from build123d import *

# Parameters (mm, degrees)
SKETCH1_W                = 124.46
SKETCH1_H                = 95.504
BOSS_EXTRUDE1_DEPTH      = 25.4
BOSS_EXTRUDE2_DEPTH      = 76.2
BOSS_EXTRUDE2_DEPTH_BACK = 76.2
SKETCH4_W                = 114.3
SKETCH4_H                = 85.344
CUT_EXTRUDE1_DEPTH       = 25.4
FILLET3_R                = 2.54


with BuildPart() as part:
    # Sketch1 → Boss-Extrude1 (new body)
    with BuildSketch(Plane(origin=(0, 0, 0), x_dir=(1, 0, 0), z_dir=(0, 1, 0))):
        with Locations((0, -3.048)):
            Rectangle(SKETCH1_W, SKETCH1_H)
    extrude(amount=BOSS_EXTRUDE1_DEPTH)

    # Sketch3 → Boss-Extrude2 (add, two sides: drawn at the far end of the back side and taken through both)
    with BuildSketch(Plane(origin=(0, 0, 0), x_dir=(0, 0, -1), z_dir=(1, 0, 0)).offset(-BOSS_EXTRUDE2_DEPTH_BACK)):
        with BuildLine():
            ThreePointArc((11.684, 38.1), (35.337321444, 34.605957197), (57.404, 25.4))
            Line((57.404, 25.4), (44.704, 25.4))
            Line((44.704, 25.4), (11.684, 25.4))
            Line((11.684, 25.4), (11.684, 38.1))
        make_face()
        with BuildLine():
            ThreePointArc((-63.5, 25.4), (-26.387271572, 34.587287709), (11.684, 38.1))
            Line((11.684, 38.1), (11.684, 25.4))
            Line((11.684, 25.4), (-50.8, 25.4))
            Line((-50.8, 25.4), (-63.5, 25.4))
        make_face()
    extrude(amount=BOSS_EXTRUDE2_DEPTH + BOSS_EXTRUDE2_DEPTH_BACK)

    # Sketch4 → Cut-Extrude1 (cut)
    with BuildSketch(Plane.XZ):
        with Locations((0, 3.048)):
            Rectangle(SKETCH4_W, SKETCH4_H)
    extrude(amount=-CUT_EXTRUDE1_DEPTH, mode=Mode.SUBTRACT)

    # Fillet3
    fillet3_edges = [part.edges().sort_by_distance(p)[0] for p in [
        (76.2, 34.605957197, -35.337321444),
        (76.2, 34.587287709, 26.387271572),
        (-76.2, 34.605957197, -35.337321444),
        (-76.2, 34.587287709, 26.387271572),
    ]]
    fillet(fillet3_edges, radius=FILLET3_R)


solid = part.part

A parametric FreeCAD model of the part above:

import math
import FreeCAD as App
import Part
import Sketcher

V = App.Vector
Q = App.Units.Quantity


def edges_at(feature, points):
    """Names of the edges that pass closest to the given points."""
    edges = feature.Shape.Edges
    near = lambda p: min(range(len(edges)), key=lambda i: edges[i].distToShape(Part.Vertex(*p))[0])
    return sorted({f"Edge{near(p) + 1}" for p in points})

doc = App.newDocument("Part")
params = doc.addObject("Spreadsheet::Sheet", "Params")
for row, (alias, value) in enumerate([
    ("sketch1_width", "4.9 in"),
    ("sketch1_height", "3.76 in"),
    ("pad1_length", "1 in"),
    ("sketch2_radius", "10 in"),
    ("sketch2_height", "4.76 in"),
    ("pad2_length", "3 in"),
    ("pad2_length2", "3 in"),
    ("sketch3_width", "4.5 in"),
    ("sketch3_height", "3.36 in"),
    ("pocket1_length", "1 in"),
    ("fillet_radius", "0.1 in"),
], start=1):
    params.set(f"A{row}", alias)
    params.set(f"B{row}", "=" + value)
    params.setAlias(f"B{row}", alias)

body = doc.addObject("PartDesign::Body", "Body")

sketch1 = body.newObject("Sketcher::SketchObject", "Sketch")
sketch1.AttachmentSupport = (doc.getObject("XZ_Plane"), [""])
sketch1.MapMode = "FlatFace"
sketch1.addGeometry([
    Part.LineSegment(V(-62, -45, 0), V(-62, 51, 0)),
    Part.LineSegment(V(-62, 51, 0), V(62, 51, 0)),
    Part.LineSegment(V(62, 51, 0), V(62, -45, 0)),
    Part.LineSegment(V(62, -45, 0), V(-62, -45, 0)),
], False)
sketch1.addConstraint([
    Sketcher.Constraint("Coincident", 0, 2, 1, 1),
    Sketcher.Constraint("Coincident", 1, 2, 2, 1),
    Sketcher.Constraint("Coincident", 2, 2, 3, 1),
    Sketcher.Constraint("Coincident", 3, 2, 0, 1),
    Sketcher.Constraint("Vertical", 0),
    Sketcher.Constraint("Horizontal", 1),
    Sketcher.Constraint("Vertical", 2),
    Sketcher.Constraint("Horizontal", 3),
    Sketcher.Constraint("DistanceX", 1, 1, 1, 2, Q("4.9 in")),
    Sketcher.Constraint("DistanceY", -1, 1, 0, 2, Q("2 in")),
    Sketcher.Constraint("DistanceY", 0, 1, 0, 2, Q("3.76 in")),
    Sketcher.Constraint("DistanceX", 0, 2, -1, 1, Q("2.45 in")),
])
sketch1.setExpression("Constraints[8]", "Params.sketch1_width")
sketch1.setExpression("Constraints[10]", "Params.sketch1_height")
pad1 = body.newObject("PartDesign::Pad", "Pad")
pad1.Profile = sketch1
pad1.setExpression("Length", "Params.pad1_length")
pad1.Reversed = True

sketch2 = body.newObject("Sketcher::SketchObject", "Sketch001")
sketch2.AttachmentSupport = (doc.getObject("YZ_Plane"), [""])
sketch2.MapMode = "FlatFace"
sketch2.addGeometry([
    Part.ArcOfCircle(Part.Circle(V(-58, -10, 0), V(0, 0, 1), 96), math.radians(-30), math.radians(-1)),
    Part.ArcOfCircle(Part.Circle(V(-216, -16, 0), V(0, 0, 1), 254), math.radians(0.96), math.radians(18.22)),
    Part.LineSegment(V(25, 64, 0), V(25, -57, 0)),
], False)
sketch2.addConstraint([
    Sketcher.Constraint("Coincident", 0, 2, 1, 1),
    Sketcher.Constraint("Coincident", 1, 2, 2, 1),
    Sketcher.Constraint("Coincident", 2, 2, 0, 1),
    Sketcher.Constraint("Vertical", 2),
    Sketcher.Constraint("Radius", 1, Q("10 in")),
    Sketcher.Constraint("DistanceX", -1, 1, 1, 2, Q("1 in")),
    Sketcher.Constraint("DistanceY", 2, 2, 2, 1, Q("4.76 in")),
    Sketcher.Constraint("DistanceX", -1, 1, 0, 2, Q("1.5 in")),
    Sketcher.Constraint("DistanceY", -1, 1, 1, 2, Q("2.5 in")),
    Sketcher.Constraint("DistanceY", 2, 2, 0, 2, Q("1.8 in")),
    Sketcher.Constraint("Radius", 0, Q("96.435545 mm")),
])
sketch2.setExpression("Constraints[4]", "Params.sketch2_radius")
sketch2.setExpression("Constraints[6]", "Params.sketch2_height")
pad2 = body.newObject("PartDesign::Pad", "Pad001")
pad2.Profile = sketch2
pad2.Type = "TwoLengths"
pad2.setExpression("Length", "Params.pad2_length")
pad2.setExpression("Length2", "Params.pad2_length2")

sketch3 = body.newObject("Sketcher::SketchObject", "Sketch002")
sketch3.AttachmentSupport = (doc.getObject("XZ_Plane"), [""])
sketch3.MapMode = "FlatFace"
sketch3.addGeometry([
    Part.LineSegment(V(-57, 46, 0), V(-57, -40, 0)),
    Part.LineSegment(V(-57, -40, 0), V(57, -40, 0)),
    Part.LineSegment(V(57, -40, 0), V(57, 46, 0)),
    Part.LineSegment(V(57, 46, 0), V(-57, 46, 0)),
], False)
sketch3.addConstraint([
    Sketcher.Constraint("Coincident", 0, 2, 1, 1),
    Sketcher.Constraint("Coincident", 1, 2, 2, 1),
    Sketcher.Constraint("Coincident", 2, 2, 3, 1),
    Sketcher.Constraint("Coincident", 3, 2, 0, 1),
    Sketcher.Constraint("Vertical", 0),
    Sketcher.Constraint("Horizontal", 1),
    Sketcher.Constraint("Vertical", 2),
    Sketcher.Constraint("Horizontal", 3),
    Sketcher.Constraint("DistanceX", 1, 1, 1, 2, Q("4.5 in")),
    Sketcher.Constraint("DistanceY", 0, 2, 0, 1, Q("3.36 in")),
    Sketcher.Constraint("DistanceY", -1, 1, 2, 2, Q("1.8 in")),
    Sketcher.Constraint("DistanceX", 0, 2, -1, 1, Q("2.25 in")),
])
sketch3.setExpression("Constraints[8]", "Params.sketch3_width")
sketch3.setExpression("Constraints[9]", "Params.sketch3_height")
pocket1 = body.newObject("PartDesign::Pocket", "Pocket")
pocket1.Profile = sketch3
pocket1.setExpression("Length", "Params.pocket1_length")
doc.recompute()

fillet = body.newObject("PartDesign::Fillet", "Fillet")
fillet.Base = (pocket1, edges_at(pocket1, [
    (76.2, 34.606, -35.337),
    (76.2, 34.587, 26.387),
    (-76.2, 34.606, -35.337),
    (-76.2, 34.587, 26.387),
]))
fillet.setExpression("Radius", "Params.fillet_radius")

doc.recompute()
